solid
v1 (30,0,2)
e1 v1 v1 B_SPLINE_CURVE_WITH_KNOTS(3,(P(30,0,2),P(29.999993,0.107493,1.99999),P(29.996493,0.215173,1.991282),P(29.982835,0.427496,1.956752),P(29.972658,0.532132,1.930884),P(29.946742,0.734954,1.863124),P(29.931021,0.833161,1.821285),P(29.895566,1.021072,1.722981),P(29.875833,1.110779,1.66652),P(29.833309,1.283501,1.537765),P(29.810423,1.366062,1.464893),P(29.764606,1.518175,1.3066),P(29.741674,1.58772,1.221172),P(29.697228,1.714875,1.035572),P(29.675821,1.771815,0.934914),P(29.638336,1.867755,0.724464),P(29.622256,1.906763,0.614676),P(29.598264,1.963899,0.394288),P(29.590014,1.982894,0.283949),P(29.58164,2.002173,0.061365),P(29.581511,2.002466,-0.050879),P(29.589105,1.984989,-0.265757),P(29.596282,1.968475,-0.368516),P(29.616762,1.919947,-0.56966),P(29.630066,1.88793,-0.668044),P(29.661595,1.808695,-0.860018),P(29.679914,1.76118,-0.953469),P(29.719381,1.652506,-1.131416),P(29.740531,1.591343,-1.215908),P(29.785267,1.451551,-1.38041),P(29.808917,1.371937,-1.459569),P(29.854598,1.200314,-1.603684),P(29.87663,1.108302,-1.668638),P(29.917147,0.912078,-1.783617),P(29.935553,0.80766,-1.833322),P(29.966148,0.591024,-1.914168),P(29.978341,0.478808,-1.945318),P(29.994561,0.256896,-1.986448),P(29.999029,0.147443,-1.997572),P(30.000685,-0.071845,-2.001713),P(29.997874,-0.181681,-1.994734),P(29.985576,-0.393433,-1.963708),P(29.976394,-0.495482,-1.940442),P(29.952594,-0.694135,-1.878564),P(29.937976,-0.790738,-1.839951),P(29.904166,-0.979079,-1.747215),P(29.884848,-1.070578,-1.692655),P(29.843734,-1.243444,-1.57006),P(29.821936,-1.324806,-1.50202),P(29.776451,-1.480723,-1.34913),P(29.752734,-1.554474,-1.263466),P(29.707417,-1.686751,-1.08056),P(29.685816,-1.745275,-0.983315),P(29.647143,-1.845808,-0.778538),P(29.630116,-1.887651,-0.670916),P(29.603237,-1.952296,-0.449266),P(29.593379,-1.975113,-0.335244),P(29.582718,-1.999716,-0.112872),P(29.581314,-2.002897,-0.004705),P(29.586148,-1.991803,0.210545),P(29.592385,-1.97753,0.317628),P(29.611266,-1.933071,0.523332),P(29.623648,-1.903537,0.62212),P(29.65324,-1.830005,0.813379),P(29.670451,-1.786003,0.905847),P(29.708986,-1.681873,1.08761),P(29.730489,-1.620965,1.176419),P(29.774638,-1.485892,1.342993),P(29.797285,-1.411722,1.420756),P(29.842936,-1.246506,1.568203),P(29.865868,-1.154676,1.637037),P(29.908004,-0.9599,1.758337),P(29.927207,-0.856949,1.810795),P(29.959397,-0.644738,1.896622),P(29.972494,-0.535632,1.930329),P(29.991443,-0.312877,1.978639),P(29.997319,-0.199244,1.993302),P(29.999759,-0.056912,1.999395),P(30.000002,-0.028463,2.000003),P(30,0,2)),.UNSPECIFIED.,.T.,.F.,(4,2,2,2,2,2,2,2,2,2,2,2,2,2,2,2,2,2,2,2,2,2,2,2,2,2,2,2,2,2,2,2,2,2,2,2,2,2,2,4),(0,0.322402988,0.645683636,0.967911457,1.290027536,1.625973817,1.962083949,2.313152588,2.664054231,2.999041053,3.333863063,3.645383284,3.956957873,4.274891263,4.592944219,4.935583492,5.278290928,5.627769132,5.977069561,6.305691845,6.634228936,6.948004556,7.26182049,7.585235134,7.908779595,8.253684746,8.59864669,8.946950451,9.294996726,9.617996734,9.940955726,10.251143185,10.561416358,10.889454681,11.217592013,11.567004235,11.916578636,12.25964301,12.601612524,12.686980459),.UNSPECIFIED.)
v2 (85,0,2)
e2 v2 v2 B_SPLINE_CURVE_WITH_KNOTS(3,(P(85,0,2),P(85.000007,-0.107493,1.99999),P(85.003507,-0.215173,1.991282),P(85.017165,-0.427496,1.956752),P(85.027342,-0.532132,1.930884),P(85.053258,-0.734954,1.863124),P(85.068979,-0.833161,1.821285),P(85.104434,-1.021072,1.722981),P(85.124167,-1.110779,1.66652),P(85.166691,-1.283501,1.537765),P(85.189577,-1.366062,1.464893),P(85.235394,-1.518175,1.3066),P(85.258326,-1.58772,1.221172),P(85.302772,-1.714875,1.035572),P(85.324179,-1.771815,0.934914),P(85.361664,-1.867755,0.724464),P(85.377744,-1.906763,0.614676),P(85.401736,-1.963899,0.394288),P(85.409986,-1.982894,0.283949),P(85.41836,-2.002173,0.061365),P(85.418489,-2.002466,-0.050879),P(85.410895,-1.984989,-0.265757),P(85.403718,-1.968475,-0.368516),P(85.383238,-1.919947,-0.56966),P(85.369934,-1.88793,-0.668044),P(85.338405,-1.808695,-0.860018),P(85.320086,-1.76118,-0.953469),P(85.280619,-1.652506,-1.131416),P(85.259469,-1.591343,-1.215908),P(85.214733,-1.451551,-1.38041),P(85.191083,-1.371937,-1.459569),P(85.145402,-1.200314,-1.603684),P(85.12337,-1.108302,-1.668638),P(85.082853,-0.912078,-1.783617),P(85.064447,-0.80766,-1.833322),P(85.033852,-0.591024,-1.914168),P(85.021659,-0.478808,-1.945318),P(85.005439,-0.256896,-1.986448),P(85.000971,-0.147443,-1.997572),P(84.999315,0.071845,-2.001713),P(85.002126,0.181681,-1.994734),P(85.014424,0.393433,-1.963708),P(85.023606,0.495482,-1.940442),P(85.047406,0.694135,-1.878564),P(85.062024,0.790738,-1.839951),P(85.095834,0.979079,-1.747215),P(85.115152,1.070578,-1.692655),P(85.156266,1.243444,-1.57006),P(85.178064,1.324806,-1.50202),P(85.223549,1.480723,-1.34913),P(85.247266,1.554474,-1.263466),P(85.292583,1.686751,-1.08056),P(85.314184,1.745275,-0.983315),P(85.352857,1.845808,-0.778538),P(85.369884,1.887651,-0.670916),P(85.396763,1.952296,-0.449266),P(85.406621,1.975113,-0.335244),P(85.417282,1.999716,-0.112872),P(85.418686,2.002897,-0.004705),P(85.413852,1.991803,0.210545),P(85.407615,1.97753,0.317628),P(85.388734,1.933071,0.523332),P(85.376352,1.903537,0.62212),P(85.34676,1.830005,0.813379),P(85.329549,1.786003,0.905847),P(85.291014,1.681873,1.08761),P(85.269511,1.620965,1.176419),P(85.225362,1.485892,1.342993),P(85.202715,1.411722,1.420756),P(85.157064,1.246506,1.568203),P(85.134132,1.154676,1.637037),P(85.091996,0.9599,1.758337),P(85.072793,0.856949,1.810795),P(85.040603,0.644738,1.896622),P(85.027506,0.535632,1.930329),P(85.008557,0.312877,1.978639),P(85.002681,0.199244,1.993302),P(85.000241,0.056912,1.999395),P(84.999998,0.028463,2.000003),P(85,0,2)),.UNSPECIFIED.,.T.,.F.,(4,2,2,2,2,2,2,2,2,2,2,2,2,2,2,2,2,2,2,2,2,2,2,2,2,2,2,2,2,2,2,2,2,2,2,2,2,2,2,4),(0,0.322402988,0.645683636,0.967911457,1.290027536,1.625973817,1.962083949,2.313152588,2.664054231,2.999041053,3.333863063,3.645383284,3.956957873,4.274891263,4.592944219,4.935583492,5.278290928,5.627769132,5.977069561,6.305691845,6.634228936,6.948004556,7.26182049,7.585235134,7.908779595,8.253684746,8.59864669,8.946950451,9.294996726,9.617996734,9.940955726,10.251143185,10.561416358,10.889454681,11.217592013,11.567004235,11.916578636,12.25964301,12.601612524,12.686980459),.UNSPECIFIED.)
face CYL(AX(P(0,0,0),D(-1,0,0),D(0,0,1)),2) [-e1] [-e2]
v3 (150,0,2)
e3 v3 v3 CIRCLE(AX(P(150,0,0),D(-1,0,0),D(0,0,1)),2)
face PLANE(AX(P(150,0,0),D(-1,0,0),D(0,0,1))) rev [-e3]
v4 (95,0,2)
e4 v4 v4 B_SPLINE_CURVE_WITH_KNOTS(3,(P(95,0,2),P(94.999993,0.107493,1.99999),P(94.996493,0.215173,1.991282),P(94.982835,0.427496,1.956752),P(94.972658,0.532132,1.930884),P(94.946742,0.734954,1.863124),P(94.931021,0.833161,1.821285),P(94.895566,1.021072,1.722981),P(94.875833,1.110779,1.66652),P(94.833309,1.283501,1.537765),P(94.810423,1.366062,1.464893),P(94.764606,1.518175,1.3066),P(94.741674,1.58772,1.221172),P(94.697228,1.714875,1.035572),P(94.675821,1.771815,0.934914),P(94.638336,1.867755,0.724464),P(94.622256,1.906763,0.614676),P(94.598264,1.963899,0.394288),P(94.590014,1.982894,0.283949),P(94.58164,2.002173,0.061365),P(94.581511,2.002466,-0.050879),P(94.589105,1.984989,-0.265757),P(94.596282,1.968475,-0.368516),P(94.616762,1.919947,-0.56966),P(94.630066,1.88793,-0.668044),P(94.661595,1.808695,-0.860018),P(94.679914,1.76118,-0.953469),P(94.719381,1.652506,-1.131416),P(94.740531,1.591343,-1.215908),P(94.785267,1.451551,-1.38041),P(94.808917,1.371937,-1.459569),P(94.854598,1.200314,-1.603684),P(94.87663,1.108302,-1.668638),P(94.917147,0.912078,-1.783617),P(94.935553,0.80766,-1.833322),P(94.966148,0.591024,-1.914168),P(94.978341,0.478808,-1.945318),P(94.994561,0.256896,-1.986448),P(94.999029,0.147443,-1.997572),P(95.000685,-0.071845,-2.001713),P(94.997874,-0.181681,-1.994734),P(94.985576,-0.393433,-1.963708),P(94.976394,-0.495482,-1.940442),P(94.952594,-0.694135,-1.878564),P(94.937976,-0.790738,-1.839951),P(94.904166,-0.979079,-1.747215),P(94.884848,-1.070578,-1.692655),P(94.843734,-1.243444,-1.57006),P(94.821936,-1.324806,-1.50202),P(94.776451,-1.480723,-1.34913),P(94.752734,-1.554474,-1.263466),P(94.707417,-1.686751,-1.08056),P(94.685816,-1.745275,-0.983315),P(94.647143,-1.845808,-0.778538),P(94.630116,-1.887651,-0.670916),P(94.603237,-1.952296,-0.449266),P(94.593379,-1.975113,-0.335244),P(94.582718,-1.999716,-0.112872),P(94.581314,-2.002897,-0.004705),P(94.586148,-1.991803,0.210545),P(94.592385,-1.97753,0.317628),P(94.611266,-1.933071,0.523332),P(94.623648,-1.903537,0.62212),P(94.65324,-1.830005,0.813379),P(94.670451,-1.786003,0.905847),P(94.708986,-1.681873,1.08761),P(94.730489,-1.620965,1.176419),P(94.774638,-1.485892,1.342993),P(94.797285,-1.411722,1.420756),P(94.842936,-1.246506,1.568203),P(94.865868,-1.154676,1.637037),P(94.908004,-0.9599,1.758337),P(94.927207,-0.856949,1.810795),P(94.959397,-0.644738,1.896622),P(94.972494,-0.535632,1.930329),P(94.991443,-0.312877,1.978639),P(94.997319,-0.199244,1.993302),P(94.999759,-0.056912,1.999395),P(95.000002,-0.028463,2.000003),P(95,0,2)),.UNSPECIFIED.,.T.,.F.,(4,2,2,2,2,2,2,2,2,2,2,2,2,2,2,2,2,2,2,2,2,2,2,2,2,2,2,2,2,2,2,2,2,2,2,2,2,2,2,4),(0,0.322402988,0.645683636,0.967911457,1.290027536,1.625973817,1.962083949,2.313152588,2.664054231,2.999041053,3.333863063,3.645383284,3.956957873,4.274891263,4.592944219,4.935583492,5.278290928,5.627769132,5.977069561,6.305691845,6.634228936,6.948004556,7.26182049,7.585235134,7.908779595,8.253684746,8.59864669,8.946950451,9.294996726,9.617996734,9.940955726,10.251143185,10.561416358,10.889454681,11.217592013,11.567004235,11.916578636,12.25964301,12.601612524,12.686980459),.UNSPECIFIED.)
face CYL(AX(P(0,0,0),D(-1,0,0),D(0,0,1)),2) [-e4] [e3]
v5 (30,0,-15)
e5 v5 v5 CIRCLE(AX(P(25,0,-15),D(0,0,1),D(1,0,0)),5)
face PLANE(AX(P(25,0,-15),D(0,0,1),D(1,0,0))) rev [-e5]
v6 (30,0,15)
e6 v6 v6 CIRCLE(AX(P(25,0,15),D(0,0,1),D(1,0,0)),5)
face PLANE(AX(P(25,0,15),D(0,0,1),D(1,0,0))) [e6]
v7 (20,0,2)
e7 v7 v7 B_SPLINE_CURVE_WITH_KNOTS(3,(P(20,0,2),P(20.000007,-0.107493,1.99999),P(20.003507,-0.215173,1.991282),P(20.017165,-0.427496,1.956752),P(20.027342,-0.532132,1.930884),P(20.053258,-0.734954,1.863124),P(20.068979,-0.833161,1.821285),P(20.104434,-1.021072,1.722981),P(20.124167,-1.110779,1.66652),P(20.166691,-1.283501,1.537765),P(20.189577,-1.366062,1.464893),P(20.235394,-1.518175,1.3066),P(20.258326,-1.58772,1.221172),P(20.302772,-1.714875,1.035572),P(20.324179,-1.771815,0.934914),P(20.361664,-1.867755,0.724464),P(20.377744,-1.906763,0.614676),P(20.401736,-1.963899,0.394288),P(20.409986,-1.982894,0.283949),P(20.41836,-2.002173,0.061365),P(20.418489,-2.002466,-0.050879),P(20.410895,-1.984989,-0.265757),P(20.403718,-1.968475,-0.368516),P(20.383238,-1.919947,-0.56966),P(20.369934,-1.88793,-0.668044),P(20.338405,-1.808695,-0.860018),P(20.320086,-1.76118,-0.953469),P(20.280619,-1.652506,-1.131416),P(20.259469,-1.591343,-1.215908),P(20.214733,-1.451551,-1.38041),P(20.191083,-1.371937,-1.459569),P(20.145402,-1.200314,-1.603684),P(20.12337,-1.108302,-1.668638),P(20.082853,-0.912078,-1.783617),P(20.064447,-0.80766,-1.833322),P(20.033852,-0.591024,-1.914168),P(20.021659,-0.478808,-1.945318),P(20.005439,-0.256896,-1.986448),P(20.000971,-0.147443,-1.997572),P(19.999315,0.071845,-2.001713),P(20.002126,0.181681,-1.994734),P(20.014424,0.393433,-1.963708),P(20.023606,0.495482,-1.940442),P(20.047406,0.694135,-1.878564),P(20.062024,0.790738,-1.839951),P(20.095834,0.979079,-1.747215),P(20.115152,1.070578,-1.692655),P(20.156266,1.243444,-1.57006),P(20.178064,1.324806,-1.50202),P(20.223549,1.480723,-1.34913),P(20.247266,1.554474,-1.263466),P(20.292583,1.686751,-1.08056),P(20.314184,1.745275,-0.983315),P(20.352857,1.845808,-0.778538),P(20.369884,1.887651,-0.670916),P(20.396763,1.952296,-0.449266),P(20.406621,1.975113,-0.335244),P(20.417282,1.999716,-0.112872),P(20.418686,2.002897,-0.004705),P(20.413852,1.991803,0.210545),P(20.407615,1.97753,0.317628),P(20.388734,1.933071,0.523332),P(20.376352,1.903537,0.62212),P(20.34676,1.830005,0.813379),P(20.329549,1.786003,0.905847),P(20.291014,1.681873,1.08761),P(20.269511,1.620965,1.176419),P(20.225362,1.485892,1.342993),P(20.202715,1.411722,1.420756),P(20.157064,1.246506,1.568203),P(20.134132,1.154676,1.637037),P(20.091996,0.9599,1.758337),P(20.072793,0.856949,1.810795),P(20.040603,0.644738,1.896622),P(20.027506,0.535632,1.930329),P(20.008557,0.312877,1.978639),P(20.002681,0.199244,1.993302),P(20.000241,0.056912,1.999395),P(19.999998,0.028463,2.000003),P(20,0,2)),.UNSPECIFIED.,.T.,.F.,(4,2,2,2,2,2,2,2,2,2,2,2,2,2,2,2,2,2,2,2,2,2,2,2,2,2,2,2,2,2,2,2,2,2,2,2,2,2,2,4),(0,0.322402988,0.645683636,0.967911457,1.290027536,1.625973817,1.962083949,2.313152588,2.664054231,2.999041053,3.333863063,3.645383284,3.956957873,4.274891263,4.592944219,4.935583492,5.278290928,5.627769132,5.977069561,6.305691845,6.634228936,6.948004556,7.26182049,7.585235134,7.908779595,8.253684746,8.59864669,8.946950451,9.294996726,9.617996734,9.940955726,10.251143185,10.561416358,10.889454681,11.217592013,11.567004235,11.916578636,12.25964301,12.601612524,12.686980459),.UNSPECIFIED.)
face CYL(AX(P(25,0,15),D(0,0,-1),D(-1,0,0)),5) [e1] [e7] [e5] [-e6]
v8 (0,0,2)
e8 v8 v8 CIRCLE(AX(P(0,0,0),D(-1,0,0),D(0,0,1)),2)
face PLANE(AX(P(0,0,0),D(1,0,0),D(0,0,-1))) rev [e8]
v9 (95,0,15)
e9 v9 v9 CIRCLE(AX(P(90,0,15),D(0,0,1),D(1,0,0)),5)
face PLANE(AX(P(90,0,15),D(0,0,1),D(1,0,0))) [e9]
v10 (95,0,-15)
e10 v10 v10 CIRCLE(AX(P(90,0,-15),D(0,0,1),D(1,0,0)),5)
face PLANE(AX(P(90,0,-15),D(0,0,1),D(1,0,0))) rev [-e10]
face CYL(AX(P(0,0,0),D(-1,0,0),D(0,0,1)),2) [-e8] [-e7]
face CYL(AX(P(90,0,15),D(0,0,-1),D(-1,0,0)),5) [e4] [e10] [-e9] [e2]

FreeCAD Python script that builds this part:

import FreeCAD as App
import Part
import Sketcher
from FreeCAD import Vector
Q = App.Units.Quantity


def add_polygon(sketch, points):
    """Adds a closed chain of lines whose ends are joined by coincident constraints."""
    first, n = sketch.GeometryCount, len(points)
    for a, b in zip(points, points[1:] + points[:1]):
        sketch.addGeometry(Part.LineSegment(App.Vector(*a, 0), App.Vector(*b, 0)), False)
    for i in range(n):
        sketch.addConstraint(Sketcher.Constraint("Coincident", first + i, 2, first + (i + 1) % n, 1))

doc = App.newDocument("Part")
params = doc.addObject("Spreadsheet::Sheet", "Params")
for row, (alias, value) in enumerate([
    ("sketch1_width", "150 mm"),
    ("sketch1_height", "2 mm"),
    ("revolution_angle", "360 deg"),
    ("sketch2_diameter", "10 mm"),
    ("pad1_length", "30 mm"),
], start=1):
    params.set(f"A{row}", alias)
    params.set(f"B{row}", "=" + value)
    params.setAlias(f"B{row}", alias)

body = doc.addObject("PartDesign::Body", "Body")

sketch1 = doc.addObject("Sketcher::SketchObject", "Sketch")
body.addObject(sketch1)
sketch1.AttachmentSupport = (doc.XY_Plane, [""])
sketch1.MapMode = "FlatFace"
add_polygon(sketch1, [(0, 2), (0, 0), (150, 0), (150, 2)])
sketch1.addConstraint([
    Sketcher.Constraint("Vertical", 0),
    Sketcher.Constraint("Horizontal", 1),
    Sketcher.Constraint("Vertical", 2),
    Sketcher.Constraint("Horizontal", 3),
    Sketcher.Constraint("Coincident", 0, 2, -1, 1),
    Sketcher.Constraint("DistanceX", 1, 1, 1, 2, Q("150 mm")),
    Sketcher.Constraint("DistanceY", 0, 2, 0, 1, Q("2 mm")),
])
sketch1.setExpression("Constraints[9]", "Params.sketch1_width")
sketch1.setExpression("Constraints[10]", "Params.sketch1_height")
revolution = doc.addObject("PartDesign::Revolution", "Revolution")
body.addObject(revolution)
revolution.Profile = sketch1
revolution.ReferenceAxis = (sketch1, ["H_Axis"])
revolution.setExpression("Angle", "Params.revolution_angle")

sketch2 = doc.addObject("Sketcher::SketchObject", "Sketch001")
body.addObject(sketch2)
sketch2.AttachmentSupport = (doc.XY_Plane, [""])
sketch2.MapMode = "FlatFace"
sketch2.addGeometry([
    Part.Circle(Vector(90, 0, 0), Vector(0, 0, 1), 5),
    Part.Circle(Vector(25, 0, 0), Vector(0, 0, 1), 5),
], False)
sketch2.addConstraint([
    Sketcher.Constraint("Equal", 0, 1),
    Sketcher.Constraint("PointOnObject", 0, 3, -1),
    Sketcher.Constraint("PointOnObject", 1, 3, -1),
    Sketcher.Constraint("Diameter", 0, Q("10 mm")),
    Sketcher.Constraint("DistanceX", -1, 1, 0, 3, Q("90 mm")),
    Sketcher.Constraint("DistanceX", -1, 1, 1, 3, Q("25 mm")),
])
sketch2.setExpression("Constraints[3]", "Params.sketch2_diameter")
pad1 = doc.addObject("PartDesign::Pad", "Pad")
body.addObject(pad1)
pad1.Profile = sketch2
pad1.setExpression("Length", "Params.pad1_length")
pad1.Midplane = True

doc.recompute()
